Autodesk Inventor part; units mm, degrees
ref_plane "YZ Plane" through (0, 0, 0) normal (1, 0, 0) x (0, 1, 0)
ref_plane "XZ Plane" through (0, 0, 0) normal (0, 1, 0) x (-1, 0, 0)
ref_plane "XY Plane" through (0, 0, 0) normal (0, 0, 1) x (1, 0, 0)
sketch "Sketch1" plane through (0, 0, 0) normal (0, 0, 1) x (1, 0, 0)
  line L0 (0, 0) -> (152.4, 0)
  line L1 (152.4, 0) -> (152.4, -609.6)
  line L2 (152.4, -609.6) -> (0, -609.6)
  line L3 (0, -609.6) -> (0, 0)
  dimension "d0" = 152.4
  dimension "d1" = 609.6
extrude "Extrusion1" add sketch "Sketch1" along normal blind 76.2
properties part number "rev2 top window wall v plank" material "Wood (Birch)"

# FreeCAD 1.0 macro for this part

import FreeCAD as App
import Part
import Sketcher

V = App.Vector
Q = App.Units.Quantity


def add_polygon(sketch, points):
    """Adds a closed chain of lines whose ends are joined by coincident constraints."""
    first, n = sketch.GeometryCount, len(points)
    for a, b in zip(points, points[1:] + points[:1]):
        sketch.addGeometry(Part.LineSegment(App.Vector(*a, 0), App.Vector(*b, 0)), False)
    for i in range(n):
        sketch.addConstraint(Sketcher.Constraint("Coincident", first + i, 2, first + (i + 1) % n, 1))

doc = App.newDocument("Part")
body = doc.addObject("PartDesign::Body", "Body")

# Sketch on XY plane
sketch1 = body.newObject("Sketcher::SketchObject", "Sketch")
sketch1.AttachmentSupport = (doc.getObject("XY_Plane"), [""])
sketch1.MapMode = "FlatFace"
add_polygon(sketch1, [(152.4, 0), (0, 0), (0, -609.6), (152.4, -609.6)])  # lines 0-3
sketch1.addConstraint(Sketcher.Constraint("Horizontal", 0))
sketch1.addConstraint(Sketcher.Constraint("Vertical", 1))
sketch1.addConstraint(Sketcher.Constraint("Horizontal", 2))
sketch1.addConstraint(Sketcher.Constraint("Vertical", 3))
sketch1.addConstraint(Sketcher.Constraint("Coincident", 0, 2, -1, 1))
sketch1.addConstraint(Sketcher.Constraint("DistanceX", 0, 2, 0, 1, Q("6 in")))
sketch1.addConstraint(Sketcher.Constraint("DistanceY", 1, 2, 1, 1, Q("24 in")))
pad1 = body.newObject("PartDesign::Pad", "Pad")
pad1.Profile = sketch1
pad1.Length = Q("3 in")

doc.recompute()
